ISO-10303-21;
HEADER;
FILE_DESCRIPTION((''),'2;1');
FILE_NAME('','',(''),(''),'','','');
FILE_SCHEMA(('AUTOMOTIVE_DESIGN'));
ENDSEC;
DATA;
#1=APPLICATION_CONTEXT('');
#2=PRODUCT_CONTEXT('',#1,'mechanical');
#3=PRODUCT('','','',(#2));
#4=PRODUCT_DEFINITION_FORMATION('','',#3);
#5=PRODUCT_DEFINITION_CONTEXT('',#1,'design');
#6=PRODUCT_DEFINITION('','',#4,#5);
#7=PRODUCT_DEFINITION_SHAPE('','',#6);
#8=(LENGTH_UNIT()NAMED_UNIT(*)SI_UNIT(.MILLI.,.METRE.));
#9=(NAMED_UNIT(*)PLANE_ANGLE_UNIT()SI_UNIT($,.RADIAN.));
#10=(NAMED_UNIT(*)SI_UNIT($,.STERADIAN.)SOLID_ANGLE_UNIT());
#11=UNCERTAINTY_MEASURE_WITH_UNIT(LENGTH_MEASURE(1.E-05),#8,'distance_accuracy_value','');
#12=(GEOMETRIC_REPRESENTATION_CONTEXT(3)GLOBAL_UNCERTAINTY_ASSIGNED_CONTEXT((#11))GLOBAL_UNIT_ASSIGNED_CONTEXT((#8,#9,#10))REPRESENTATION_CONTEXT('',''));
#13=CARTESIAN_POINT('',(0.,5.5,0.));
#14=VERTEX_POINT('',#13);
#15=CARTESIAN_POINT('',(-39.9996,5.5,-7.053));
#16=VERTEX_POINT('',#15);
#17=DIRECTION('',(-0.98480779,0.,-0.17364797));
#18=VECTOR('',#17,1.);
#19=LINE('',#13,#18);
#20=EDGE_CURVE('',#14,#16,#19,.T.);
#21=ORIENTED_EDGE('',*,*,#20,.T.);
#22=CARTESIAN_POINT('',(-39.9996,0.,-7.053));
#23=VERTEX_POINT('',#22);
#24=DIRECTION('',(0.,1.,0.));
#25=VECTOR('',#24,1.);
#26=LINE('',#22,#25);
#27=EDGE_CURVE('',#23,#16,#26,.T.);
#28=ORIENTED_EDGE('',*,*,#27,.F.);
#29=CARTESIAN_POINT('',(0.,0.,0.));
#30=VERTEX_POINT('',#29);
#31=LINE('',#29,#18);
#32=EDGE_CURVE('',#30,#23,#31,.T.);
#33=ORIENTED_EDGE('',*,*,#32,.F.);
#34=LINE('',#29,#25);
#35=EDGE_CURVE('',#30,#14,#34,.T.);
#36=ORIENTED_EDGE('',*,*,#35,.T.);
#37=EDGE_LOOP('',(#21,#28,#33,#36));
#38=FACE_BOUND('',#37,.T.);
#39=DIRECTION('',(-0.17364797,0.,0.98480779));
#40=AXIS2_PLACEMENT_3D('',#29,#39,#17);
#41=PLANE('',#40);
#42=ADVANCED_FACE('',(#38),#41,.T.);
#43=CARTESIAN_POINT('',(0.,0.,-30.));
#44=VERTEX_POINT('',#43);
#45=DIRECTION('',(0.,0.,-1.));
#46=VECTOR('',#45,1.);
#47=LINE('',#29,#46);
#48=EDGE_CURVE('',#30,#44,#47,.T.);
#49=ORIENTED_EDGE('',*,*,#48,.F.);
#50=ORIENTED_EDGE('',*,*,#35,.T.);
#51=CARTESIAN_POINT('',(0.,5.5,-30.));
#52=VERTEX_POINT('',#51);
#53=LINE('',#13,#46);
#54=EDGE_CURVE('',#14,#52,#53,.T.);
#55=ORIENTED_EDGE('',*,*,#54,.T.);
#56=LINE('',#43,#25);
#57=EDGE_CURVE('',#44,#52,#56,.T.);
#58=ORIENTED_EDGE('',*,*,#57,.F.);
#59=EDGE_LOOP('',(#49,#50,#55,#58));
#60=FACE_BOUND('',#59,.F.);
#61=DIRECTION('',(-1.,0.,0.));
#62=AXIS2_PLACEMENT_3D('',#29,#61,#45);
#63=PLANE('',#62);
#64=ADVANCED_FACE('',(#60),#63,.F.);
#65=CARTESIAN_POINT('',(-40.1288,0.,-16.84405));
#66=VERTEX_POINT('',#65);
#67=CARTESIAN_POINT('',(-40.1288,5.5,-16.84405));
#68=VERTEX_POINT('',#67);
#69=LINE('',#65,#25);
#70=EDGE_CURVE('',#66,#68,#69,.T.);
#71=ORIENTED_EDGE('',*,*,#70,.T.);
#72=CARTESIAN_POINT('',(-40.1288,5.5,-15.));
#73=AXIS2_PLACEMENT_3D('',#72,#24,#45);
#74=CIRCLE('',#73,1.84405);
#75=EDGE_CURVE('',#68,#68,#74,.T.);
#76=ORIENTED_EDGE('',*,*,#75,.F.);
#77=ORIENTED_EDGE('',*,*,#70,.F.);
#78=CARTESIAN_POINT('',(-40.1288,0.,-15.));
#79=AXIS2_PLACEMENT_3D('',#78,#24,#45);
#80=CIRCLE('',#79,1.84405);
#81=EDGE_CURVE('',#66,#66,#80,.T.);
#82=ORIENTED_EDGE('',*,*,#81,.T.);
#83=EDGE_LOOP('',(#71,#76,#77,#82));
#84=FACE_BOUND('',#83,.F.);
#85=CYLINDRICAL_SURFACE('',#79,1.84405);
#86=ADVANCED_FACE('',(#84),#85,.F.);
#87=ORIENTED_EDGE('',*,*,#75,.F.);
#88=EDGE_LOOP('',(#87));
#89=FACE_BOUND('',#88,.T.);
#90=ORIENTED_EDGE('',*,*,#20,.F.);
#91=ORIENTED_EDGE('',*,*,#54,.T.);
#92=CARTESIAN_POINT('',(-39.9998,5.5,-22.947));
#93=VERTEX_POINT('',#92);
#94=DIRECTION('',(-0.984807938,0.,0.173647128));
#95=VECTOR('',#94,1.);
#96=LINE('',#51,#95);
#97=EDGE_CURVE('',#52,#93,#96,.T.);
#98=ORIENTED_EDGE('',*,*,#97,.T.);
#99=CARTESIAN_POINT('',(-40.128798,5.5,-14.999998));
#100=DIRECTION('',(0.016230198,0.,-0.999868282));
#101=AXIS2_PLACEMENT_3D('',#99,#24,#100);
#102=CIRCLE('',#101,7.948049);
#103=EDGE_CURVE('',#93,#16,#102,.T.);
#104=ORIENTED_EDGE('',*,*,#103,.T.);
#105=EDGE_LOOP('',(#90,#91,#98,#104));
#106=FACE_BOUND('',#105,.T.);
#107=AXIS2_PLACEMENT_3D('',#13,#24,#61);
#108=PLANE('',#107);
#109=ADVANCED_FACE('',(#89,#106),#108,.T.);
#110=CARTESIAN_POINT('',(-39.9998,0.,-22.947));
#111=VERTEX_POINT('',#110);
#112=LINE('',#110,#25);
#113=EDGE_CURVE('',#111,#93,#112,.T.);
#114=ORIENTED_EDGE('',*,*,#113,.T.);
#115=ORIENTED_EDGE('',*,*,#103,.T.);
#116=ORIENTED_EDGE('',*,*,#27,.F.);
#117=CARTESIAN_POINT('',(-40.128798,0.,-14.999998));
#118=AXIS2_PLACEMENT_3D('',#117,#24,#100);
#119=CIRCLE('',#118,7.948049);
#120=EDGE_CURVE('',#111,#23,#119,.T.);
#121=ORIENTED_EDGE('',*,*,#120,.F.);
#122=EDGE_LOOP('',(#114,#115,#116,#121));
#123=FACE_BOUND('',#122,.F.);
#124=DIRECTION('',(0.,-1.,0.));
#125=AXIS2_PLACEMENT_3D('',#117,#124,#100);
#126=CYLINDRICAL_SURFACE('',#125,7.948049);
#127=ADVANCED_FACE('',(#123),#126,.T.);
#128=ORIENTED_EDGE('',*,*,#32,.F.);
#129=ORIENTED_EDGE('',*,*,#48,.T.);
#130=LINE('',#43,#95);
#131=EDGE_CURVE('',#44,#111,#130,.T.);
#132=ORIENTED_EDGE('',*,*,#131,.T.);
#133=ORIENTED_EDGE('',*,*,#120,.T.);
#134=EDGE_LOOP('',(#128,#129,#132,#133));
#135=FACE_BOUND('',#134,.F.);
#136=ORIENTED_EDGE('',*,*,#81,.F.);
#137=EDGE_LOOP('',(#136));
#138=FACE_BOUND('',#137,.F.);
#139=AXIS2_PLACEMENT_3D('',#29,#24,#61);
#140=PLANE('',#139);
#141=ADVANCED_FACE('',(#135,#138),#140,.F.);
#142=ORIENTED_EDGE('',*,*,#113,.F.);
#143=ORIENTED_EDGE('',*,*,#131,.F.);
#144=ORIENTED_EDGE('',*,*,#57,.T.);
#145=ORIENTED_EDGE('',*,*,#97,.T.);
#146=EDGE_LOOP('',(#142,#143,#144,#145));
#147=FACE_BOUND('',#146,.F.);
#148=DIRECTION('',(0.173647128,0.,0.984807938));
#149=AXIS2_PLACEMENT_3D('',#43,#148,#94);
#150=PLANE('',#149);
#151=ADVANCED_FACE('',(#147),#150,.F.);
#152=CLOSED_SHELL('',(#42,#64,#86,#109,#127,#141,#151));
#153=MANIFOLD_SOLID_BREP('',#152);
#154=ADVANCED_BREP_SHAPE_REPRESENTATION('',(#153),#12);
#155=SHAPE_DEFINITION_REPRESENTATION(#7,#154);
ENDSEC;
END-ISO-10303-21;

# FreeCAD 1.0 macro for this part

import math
import FreeCAD as App
import Part
import Sketcher

V = App.Vector
Q = App.Units.Quantity

doc = App.newDocument("Part")
body = doc.addObject("PartDesign::Body", "Body")

# Sketch on XZ plane
sketch1 = body.newObject("Sketcher::SketchObject", "Sketch")
sketch1.AttachmentSupport = (doc.getObject("XZ_Plane"), [""])
sketch1.MapMode = "FlatFace"
sketch1.addGeometry(Part.LineSegment(V(-40, -7, 0), V(0, 0, 0)), False)
sketch1.addGeometry(Part.LineSegment(V(0, 0, 0), V(0, -30, 0)), False)
sketch1.addGeometry(Part.LineSegment(V(0, -30, 0), V(-40, -23, 0)), False)
sketch1.addGeometry(Part.ArcOfCircle(Part.Circle(V(-40, -15, 0), V(0, 0, 1), 8), math.radians(89), math.radians(271)), False)
sketch1.addConstraint(Sketcher.Constraint("Coincident", 0, 2, 1, 1))
sketch1.addConstraint(Sketcher.Constraint("Coincident", 1, 2, 2, 1))
sketch1.addConstraint(Sketcher.Constraint("Coincident", 2, 2, 3, 2))
sketch1.addConstraint(Sketcher.Constraint("Coincident", 3, 1, 0, 1))
sketch1.addConstraint(Sketcher.Constraint("Vertical", 1))
sketch1.addConstraint(Sketcher.Constraint("Coincident", 0, 2, -1, 1))
sketch1.addConstraint(Sketcher.Constraint("Vertical", 2, 2, 3, 1))
sketch1.addConstraint(Sketcher.Constraint("Equal", 0, 2))
sketch1.addConstraint(Sketcher.Constraint("DistanceY", 1, 2, 1, 1, Q("30 mm")))
sketch1.addConstraint(Sketcher.Constraint("Radius", 3, Q("7.948 mm")))
sketch1.addConstraint(Sketcher.Constraint("Angle", 0, Q("10 deg")))
sketch1.addConstraint(Sketcher.Constraint("DistanceX", 3, 3, -1, 1, Q("40.1288 mm")))
pad1 = body.newObject("PartDesign::Pad", "Pad")
pad1.Profile = sketch1
pad1.Length = 5.5
pad1.Reversed = True

# Sketch on XZ plane
sketch2 = body.newObject("Sketcher::SketchObject", "Sketch001")
sketch2.AttachmentSupport = (doc.getObject("XZ_Plane"), [""])
sketch2.MapMode = "FlatFace"
sketch2.addGeometry(Part.Circle(V(-40.1, -15, 0), V(0, 0, 1), 1.8), False)
sketch2.addConstraint(Sketcher.Constraint("Diameter", 0, Q("3.688 mm")))
sketch2.addConstraint(Sketcher.Constraint("DistanceY", 0, 3, -1, 1, Q("15 mm")))
sketch2.addConstraint(Sketcher.Constraint("DistanceX", 0, 3, -1, 1, Q("40.1288 mm")))
doc.recompute()
hole = body.newObject("PartDesign::Hole", "Hole")
hole.Profile = sketch2
hole.ThreadType = "None"
hole.Diameter = 3.6881
hole.DepthType = "Dimension"
hole.Depth = 13
hole.DrillPoint = "Angled"
hole.DrillPointAngle = 118

doc.recompute()
